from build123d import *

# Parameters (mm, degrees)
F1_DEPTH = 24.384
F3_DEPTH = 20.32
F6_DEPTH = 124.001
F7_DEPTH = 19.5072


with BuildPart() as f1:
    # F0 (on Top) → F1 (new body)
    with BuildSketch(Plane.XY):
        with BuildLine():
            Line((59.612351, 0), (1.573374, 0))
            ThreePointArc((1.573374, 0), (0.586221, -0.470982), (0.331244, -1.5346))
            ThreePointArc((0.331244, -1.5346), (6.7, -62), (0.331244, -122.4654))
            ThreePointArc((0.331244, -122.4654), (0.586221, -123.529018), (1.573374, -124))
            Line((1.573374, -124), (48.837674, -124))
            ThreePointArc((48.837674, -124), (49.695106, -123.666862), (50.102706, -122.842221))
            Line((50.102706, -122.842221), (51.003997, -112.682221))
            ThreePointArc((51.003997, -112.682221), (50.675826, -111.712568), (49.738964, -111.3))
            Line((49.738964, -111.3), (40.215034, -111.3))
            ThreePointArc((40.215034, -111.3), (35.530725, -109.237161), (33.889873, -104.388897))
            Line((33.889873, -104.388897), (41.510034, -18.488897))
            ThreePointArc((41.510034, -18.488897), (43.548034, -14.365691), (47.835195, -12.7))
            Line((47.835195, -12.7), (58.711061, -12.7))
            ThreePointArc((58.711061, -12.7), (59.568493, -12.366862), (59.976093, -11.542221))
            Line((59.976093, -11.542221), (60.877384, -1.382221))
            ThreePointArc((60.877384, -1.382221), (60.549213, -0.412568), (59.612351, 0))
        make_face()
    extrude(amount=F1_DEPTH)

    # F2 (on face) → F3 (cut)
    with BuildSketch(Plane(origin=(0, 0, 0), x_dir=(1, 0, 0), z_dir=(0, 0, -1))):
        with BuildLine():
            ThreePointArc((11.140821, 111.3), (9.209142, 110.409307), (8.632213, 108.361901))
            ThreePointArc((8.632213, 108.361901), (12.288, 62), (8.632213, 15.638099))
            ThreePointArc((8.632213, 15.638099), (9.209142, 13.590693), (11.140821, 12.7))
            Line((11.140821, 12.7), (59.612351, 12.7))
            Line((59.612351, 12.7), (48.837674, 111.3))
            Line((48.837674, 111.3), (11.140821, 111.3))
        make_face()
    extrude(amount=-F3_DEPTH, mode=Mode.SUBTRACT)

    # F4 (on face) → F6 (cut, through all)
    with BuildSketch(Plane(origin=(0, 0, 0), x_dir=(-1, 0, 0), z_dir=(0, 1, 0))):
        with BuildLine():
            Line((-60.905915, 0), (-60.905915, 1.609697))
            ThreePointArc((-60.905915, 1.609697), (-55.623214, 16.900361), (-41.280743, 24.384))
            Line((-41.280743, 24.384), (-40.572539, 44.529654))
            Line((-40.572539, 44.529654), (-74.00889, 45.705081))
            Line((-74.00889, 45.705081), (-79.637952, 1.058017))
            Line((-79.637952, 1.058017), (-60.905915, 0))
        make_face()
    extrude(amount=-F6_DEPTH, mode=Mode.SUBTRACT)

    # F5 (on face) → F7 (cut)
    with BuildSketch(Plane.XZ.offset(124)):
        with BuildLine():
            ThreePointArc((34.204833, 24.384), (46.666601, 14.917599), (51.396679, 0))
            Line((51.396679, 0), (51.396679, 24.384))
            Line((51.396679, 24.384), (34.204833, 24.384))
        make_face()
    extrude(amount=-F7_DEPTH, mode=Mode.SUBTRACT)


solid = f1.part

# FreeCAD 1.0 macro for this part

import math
import FreeCAD as App
import Part
import Sketcher
from FreeCAD import Vector
Q = App.Units.Quantity

doc = App.newDocument("Part")
body = doc.addObject("PartDesign::Body", "Body")

sketch1 = doc.addObject("Sketcher::SketchObject", "Sketch")
body.addObject(sketch1)
sketch1.AttachmentSupport = (doc.XY_Plane, [""])
sketch1.MapMode = "FlatFace"
sketch1.addGeometry(Part.LineSegment(Vector(59.612351, 0, 0), Vector(1.573374, 0, 0)), False)
sketch1.addGeometry(Part.ArcOfCircle(Part.Circle(Vector(1.573373, -1.27, 0), Vector(0, 0, 1), 1.27), math.radians(89.999971), math.radians(192.025495)), False)
sketch1.addGeometry(Part.ArcOfCircle(Part.Circle(Vector(-283.515676, -62, 0), Vector(0, 0, 1), 290.215676), math.radians(-12.025466), math.radians(12.025466)), False)
sketch1.addGeometry(Part.ArcOfCircle(Part.Circle(Vector(1.573373, -122.73, 0), Vector(0, 0, 1), 1.27), math.radians(167.974505), math.radians(270.000029)), False)
sketch1.addGeometry(Part.LineSegment(Vector(1.573374, -124, 0), Vector(48.837674, -124, 0)), False)
sketch1.addGeometry(Part.ArcOfCircle(Part.Circle(Vector(48.837674, -122.73, 0), Vector(0, 0, 1), 1.27), math.radians(-90.000008), math.radians(-5.069421)), False)
sketch1.addGeometry(Part.LineSegment(Vector(50.102706, -122.842221, 0), Vector(51.003997, -112.682221, 0)), False)
sketch1.addGeometry(Part.ArcOfCircle(Part.Circle(Vector(49.738963, -112.570001, 0), Vector(0, 0, 1), 1.270001), math.radians(-5.069379), math.radians(89.999977)), False)
sketch1.addGeometry(Part.LineSegment(Vector(49.738964, -111.3, 0), Vector(40.215034, -111.3, 0)), False)
sketch1.addGeometry(Part.ArcOfCircle(Part.Circle(Vector(40.215034, -104.95, 0), Vector(0, 0, 1), 6.35), math.radians(174.930577), math.radians(270.000001)), False)
sketch1.addGeometry(Part.LineSegment(Vector(33.889873, -104.388897, 0), Vector(41.510034, -18.488897, 0)), False)
sketch1.addGeometry(Part.ArcOfCircle(Part.Circle(Vector(47.835195, -19.05, 0), Vector(0, 0, 1), 6.35), math.radians(89.999999), math.radians(174.930583)), False)
sketch1.addGeometry(Part.LineSegment(Vector(47.835195, -12.7, 0), Vector(58.711061, -12.7, 0)), False)
sketch1.addGeometry(Part.ArcOfCircle(Part.Circle(Vector(58.711061, -11.43, 0), Vector(0, 0, 1), 1.27), math.radians(-90.000008), math.radians(-5.069421)), False)
sketch1.addGeometry(Part.LineSegment(Vector(59.976093, -11.542221, 0), Vector(60.877384, -1.382221, 0)), False)
sketch1.addGeometry(Part.ArcOfCircle(Part.Circle(Vector(59.61235, -1.270001, 0), Vector(0, 0, 1), 1.270001), math.radians(-5.069379), math.radians(89.999977)), False)
sketch1.addConstraint(Sketcher.Constraint("Coincident", 0, 2, 1, 1))
sketch1.addConstraint(Sketcher.Constraint("Coincident", 1, 2, 2, 2))
sketch1.addConstraint(Sketcher.Constraint("Coincident", 2, 1, 3, 1))
sketch1.addConstraint(Sketcher.Constraint("Coincident", 3, 2, 4, 1))
sketch1.addConstraint(Sketcher.Constraint("Coincident", 4, 2, 5, 1))
sketch1.addConstraint(Sketcher.Constraint("Coincident", 5, 2, 6, 1))
sketch1.addConstraint(Sketcher.Constraint("Coincident", 6, 2, 7, 1))
sketch1.addConstraint(Sketcher.Constraint("Coincident", 7, 2, 8, 1))
sketch1.addConstraint(Sketcher.Constraint("Coincident", 8, 2, 9, 2))
sketch1.addConstraint(Sketcher.Constraint("Coincident", 9, 1, 10, 1))
sketch1.addConstraint(Sketcher.Constraint("Coincident", 10, 2, 11, 2))
sketch1.addConstraint(Sketcher.Constraint("Coincident", 11, 1, 12, 1))
sketch1.addConstraint(Sketcher.Constraint("Coincident", 12, 2, 13, 1))
sketch1.addConstraint(Sketcher.Constraint("Coincident", 13, 2, 14, 1))
sketch1.addConstraint(Sketcher.Constraint("Coincident", 14, 2, 15, 1))
sketch1.addConstraint(Sketcher.Constraint("Coincident", 15, 2, 0, 1))
sketch1.addConstraint(Sketcher.Constraint("Horizontal", 0))
sketch1.addConstraint(Sketcher.Constraint("Horizontal", 4))
sketch1.addConstraint(Sketcher.Constraint("Horizontal", 8))
sketch1.addConstraint(Sketcher.Constraint("Horizontal", 12))
sketch1.addConstraint(Sketcher.Constraint("PointOnObject", 0, 2, -1))
sketch1.addConstraint(Sketcher.Constraint("Radius", 1, Q("0.05 in")))
sketch1.addConstraint(Sketcher.Constraint("Radius", 3, Q("0.05 in")))
sketch1.addConstraint(Sketcher.Constraint("Radius", 5, Q("0.05 in")))
sketch1.addConstraint(Sketcher.Constraint("Radius", 7, Q("0.05 in")))
sketch1.addConstraint(Sketcher.Constraint("Radius", 9, Q("0.25 in")))
sketch1.addConstraint(Sketcher.Constraint("Radius", 11, Q("0.25 in")))
sketch1.addConstraint(Sketcher.Constraint("Radius", 13, Q("0.05 in")))
sketch1.addConstraint(Sketcher.Constraint("Radius", 15, Q("0.05 in")))
sketch1.addConstraint(Sketcher.Constraint("DistanceY", 11, 1, -1, 1, Q("0.5 in")))
sketch1.addConstraint(Sketcher.Constraint("DistanceY", 5, 3, 7, 3, Q("0.4 in")))
sketch1.addConstraint(Sketcher.Constraint("DistanceY", 5, 2, 6, 2, Q("0.4 in")))
sketch1.addConstraint(Sketcher.Constraint("DistanceY", 13, 2, 14, 2, Q("0.4 in")))
sketch1.addConstraint(Sketcher.Constraint("DistanceX", 4, 1, 4, 2, 47.2643))
sketch1.addConstraint(Sketcher.Constraint("Radius", 2, 290.215676))
sketch1.addConstraint(Sketcher.Constraint("Distance", 6, 10.199898))
sketch1.addConstraint(Sketcher.Constraint("Distance", 14, 10.199898))
sketch1.addConstraint(Sketcher.Constraint("DistanceX", 8, 2, 8, 1, 9.52393))
sketch1.addConstraint(Sketcher.Constraint("DistanceY", 2, 3, -1, 1, 62.0))
sketch1.addConstraint(Sketcher.Constraint("DistanceY", 3, 3, -1, 1, 122.73))
sketch1.addConstraint(Sketcher.Constraint("DistanceY", 1, 2, -1, 1, 1.5346))
sketch1.addConstraint(Sketcher.Constraint("DistanceY", 2, 1, -1, 1, 122.4654))
sketch1.addConstraint(Sketcher.Constraint("DistanceX", 3, 3, 5, 3, 47.264301))
sketch1.addConstraint(Sketcher.Constraint("DistanceX", 3, 2, 5, 3, 47.2643))
sketch1.addConstraint(Sketcher.Constraint("DistanceX", 11, 3, 13, 2, 12.140898))
sketch1.addConstraint(Sketcher.Constraint("Distance", 10, 86.237329))
sketch1.addConstraint(Sketcher.Constraint("DistanceX", 0, 2, 0, 1, 58.038977))
sketch1.addConstraint(Sketcher.Constraint("DistanceX", 12, 1, 12, 2, 10.875866))
sketch1.addConstraint(Sketcher.Constraint("DistanceX", -1, 1, 13, 3, 58.711061))
sketch1.addConstraint(Sketcher.Constraint("DistanceY", 5, 2, -1, 1, 122.842221))
sketch1.addConstraint(Sketcher.Constraint("DistanceX", -1, 1, 12, 2, 58.711061))
sketch1.addConstraint(Sketcher.Constraint("DistanceY", 13, 2, -1, 1, 11.542221))
sketch1.addConstraint(Sketcher.Constraint("DistanceX", -1, 1, 15, 2, 59.612351))
sketch1.addConstraint(Sketcher.Constraint("DistanceX", 9, 3, 7, 3, 9.52393))
sketch1.addConstraint(Sketcher.Constraint("DistanceX", 1, 3, 11, 3, 46.261821))
sketch1.addConstraint(Sketcher.Constraint("DistanceX", 9, 3, 7, 2, 9.52393))
sketch1.addConstraint(Sketcher.Constraint("DistanceX", 9, 1, 9, 3, 6.325161))
pad1 = doc.addObject("PartDesign::Pad", "Pad")
body.addObject(pad1)
pad1.Profile = sketch1
pad1.Length = Q("0.96 in")

sketch2 = doc.addObject("Sketcher::SketchObject", "Sketch001")
body.addObject(sketch2)
sketch2.AttachmentSupport = (doc.XY_Plane, [""])
sketch2.MapMode = "FlatFace"
sketch2.addGeometry(Part.ArcOfCircle(Part.Circle(Vector(11.140822, -108.76, 0), Vector(0, 0, 1), 2.54), math.radians(170.982749), math.radians(269.999983)), False)
sketch2.addGeometry(Part.ArcOfCircle(Part.Circle(Vector(-283.5157, -62, 0), Vector(0, 0, 1), 295.8037), math.radians(-9.01726), math.radians(9.01726)), False)
sketch2.addGeometry(Part.ArcOfCircle(Part.Circle(Vector(11.140822, -15.24, 0), Vector(0, 0, 1), 2.54), math.radians(90.000017), math.radians(189.017251)), False)
sketch2.addGeometry(Part.LineSegment(Vector(11.140821, -12.7, 0), Vector(59.612351, -12.7, 0)), False)
sketch2.addGeometry(Part.LineSegment(Vector(59.612351, -12.7, 0), Vector(48.837674, -111.3, 0)), False)
sketch2.addGeometry(Part.LineSegment(Vector(48.837674, -111.3, 0), Vector(11.140821, -111.3, 0)), False)
sketch2.addConstraint(Sketcher.Constraint("Tangent", 0, 1, 1, 1))
sketch2.addConstraint(Sketcher.Constraint("Tangent", 1, 2, 2, 2))
sketch2.addConstraint(Sketcher.Constraint("Tangent", 2, 1, 3, 1))
sketch2.addConstraint(Sketcher.Constraint("Coincident", 3, 2, 4, 1))
sketch2.addConstraint(Sketcher.Constraint("Coincident", 4, 2, 5, 1))
sketch2.addConstraint(Sketcher.Constraint("Tangent", 5, 2, 0, 2))
sketch2.addConstraint(Sketcher.Constraint("Horizontal", 3))
sketch2.addConstraint(Sketcher.Constraint("Horizontal", 5))
sketch2.addConstraint(Sketcher.Constraint("Equal", 0, 2))
sketch2.addConstraint(Sketcher.Constraint("Vertical", 0, 3, 2, 3))
sketch2.addConstraint(Sketcher.Constraint("Radius", 0, Q("0.1 in")))
sketch2.addConstraint(Sketcher.Constraint("DistanceY", 2, 3, -1, 1, Q("0.6 in")))
sketch2.addConstraint(Sketcher.Constraint("Radius", 1, 295.8037))
sketch2.addConstraint(Sketcher.Constraint("DistanceX", 4, 2, 3, 2, Q("0.4241999 in")))
sketch2.addConstraint(Sketcher.Constraint("DistanceX", 3, 1, 3, 2, 48.47153))
sketch2.addConstraint(Sketcher.Constraint("DistanceY", 0, 3, -1, 1, 108.76))
sketch2.addConstraint(Sketcher.Constraint("DistanceX", 1, 3, -1, 1, 283.5157))
pocket1 = doc.addObject("PartDesign::Pocket", "Pocket")
body.addObject(pocket1)
pocket1.Profile = sketch2
pocket1.Length = Q("0.8 in")
pocket1.Reversed = True

sketch3 = doc.addObject("Sketcher::SketchObject", "Sketch002")
body.addObject(sketch3)
sketch3.AttachmentSupport = (doc.XZ_Plane, [""])
sketch3.MapMode = "FlatFace"
sketch3.addGeometry(Part.LineSegment(Vector(60.905915, 0, 0), Vector(60.905915, 1.609697, 0)), False)
sketch3.addGeometry(Part.ArcOfCircle(Part.Circle(Vector(39.045853, 2.615245, 0), Vector(0, 0, 1), 21.883177), math.radians(-2.633711), math.radians(84.138265)), False)
sketch3.addGeometry(Part.LineSegment(Vector(41.280743, 24.384, 0), Vector(40.572539, 44.529654, 0)), False)
sketch3.addGeometry(Part.LineSegment(Vector(40.572539, 44.529654, 0), Vector(74.00889, 45.705081, 0)), False)
sketch3.addGeometry(Part.LineSegment(Vector(74.00889, 45.705081, 0), Vector(79.637952, 1.058017, 0)), False)
sketch3.addGeometry(Part.LineSegment(Vector(79.637952, 1.058017, 0), Vector(60.905915, 0, 0)), False)
sketch3.addConstraint(Sketcher.Constraint("Coincident", 0, 2, 1, 1))
sketch3.addConstraint(Sketcher.Constraint("Coincident", 1, 2, 2, 1))
sketch3.addConstraint(Sketcher.Constraint("Coincident", 2, 2, 3, 1))
sketch3.addConstraint(Sketcher.Constraint("Coincident", 3, 2, 4, 1))
sketch3.addConstraint(Sketcher.Constraint("Coincident", 4, 2, 5, 1))
sketch3.addConstraint(Sketcher.Constraint("Coincident", 5, 2, 0, 1))
sketch3.addConstraint(Sketcher.Constraint("Vertical", 0))
sketch3.addConstraint(Sketcher.Constraint("PointOnObject", 5, 2, -1))
sketch3.addConstraint(Sketcher.Constraint("Perpendicular", 2, 3))
sketch3.addConstraint(Sketcher.Constraint("DistanceY", -1, 1, 1, 2, Q("0.96 in")))
sketch3.addConstraint(Sketcher.Constraint("Radius", 1, 21.883177))
sketch3.addConstraint(Sketcher.Constraint("Distance", 2, 20.158098))
sketch3.addConstraint(Sketcher.Constraint("DistanceX", 1, 3, 4, 2, 40.592099))
sketch3.addConstraint(Sketcher.Constraint("Distance", 4, 45.000518))
sketch3.addConstraint(Sketcher.Constraint("DistanceY", 0, 1, 0, 2, 1.609697))
sketch3.addConstraint(Sketcher.Constraint("DistanceX", -1, 1, 2, 2, 40.572539))
sketch3.addConstraint(Sketcher.Constraint("DistanceX", -1, 1, 3, 2, 74.00889))
sketch3.addConstraint(Sketcher.Constraint("DistanceY", -1, 1, 3, 2, 45.705081))
sketch3.addConstraint(Sketcher.Constraint("DistanceX", -1, 1, 4, 2, 79.637952))
pocket2 = doc.addObject("PartDesign::Pocket", "Pocket001")
body.addObject(pocket2)
pocket2.Profile = sketch3
pocket2.Type = "ThroughAll"
pocket2.Reversed = True

sketch4 = doc.addObject("Sketcher::SketchObject", "Sketch003")
body.addObject(sketch4)
sketch4.AttachmentSupport = (doc.XZ_Plane, [""])
sketch4.MapMode = "FlatFace"
sketch4.AttachmentOffset = App.Placement(Vector(0, 0, 124), App.Rotation())
sketch4.addGeometry(Part.ArcOfCircle(Part.Circle(Vector(25.508274, 0.000002, 0), Vector(0, 0, 1), 25.888405), math.radians(-0.000003), math.radians(70.371211)), False)
sketch4.addGeometry(Part.LineSegment(Vector(51.396679, 0, 0), Vector(51.396679, 24.384, 0)), False)
sketch4.addGeometry(Part.LineSegment(Vector(51.396679, 24.384, 0), Vector(34.204833, 24.384, 0)), False)
sketch4.addConstraint(Sketcher.Constraint("Tangent", 0, 1, 1, 1))
sketch4.addConstraint(Sketcher.Constraint("Coincident", 1, 2, 2, 1))
sketch4.addConstraint(Sketcher.Constraint("Coincident", 2, 2, 0, 2))
sketch4.addConstraint(Sketcher.Constraint("Vertical", 1))
sketch4.addConstraint(Sketcher.Constraint("Horizontal", 2))
sketch4.addConstraint(Sketcher.Constraint("PointOnObject", 0, 3, -1))
sketch4.addConstraint(Sketcher.Constraint("DistanceY", 1, 1, 1, 2, Q("0.96 in")))
sketch4.addConstraint(Sketcher.Constraint("Radius", 0, 25.888405))
sketch4.addConstraint(Sketcher.Constraint("DistanceX", -1, 1, 0, 1, 51.396679))
pocket3 = doc.addObject("PartDesign::Pocket", "Pocket002")
body.addObject(pocket3)
pocket3.Profile = sketch4
pocket3.Length = Q("0.768 in")

doc.recompute()
